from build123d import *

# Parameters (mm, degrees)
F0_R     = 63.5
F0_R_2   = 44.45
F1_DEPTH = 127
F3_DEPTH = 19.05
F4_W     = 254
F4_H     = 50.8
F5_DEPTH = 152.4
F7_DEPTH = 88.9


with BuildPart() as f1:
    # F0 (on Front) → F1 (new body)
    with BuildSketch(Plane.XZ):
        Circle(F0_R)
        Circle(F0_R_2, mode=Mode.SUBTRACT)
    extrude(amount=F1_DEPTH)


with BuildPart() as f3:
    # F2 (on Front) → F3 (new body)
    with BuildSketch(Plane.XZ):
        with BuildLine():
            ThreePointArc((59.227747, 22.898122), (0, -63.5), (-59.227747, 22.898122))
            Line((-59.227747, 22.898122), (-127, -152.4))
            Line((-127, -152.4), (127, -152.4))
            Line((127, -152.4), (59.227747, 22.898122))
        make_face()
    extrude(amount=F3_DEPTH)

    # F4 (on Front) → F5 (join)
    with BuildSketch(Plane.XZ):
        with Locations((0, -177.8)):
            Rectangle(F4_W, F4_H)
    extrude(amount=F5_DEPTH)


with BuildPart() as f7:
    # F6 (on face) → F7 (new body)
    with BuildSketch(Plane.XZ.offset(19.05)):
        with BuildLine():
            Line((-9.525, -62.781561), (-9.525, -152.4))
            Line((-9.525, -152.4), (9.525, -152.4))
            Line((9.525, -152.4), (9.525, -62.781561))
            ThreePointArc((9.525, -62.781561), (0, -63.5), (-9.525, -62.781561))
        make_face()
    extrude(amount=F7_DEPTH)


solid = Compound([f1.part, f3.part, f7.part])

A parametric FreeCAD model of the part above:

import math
import FreeCAD as App
import Part
import Sketcher
Q = App.Units.Quantity


def add_polygon(sketch, points):
    """Adds a closed chain of lines whose ends are joined by coincident constraints."""
    first, n = sketch.GeometryCount, len(points)
    for a, b in zip(points, points[1:] + points[:1]):
        sketch.addGeometry(Part.LineSegment(App.Vector(*a, 0), App.Vector(*b, 0)), False)
    for i in range(n):
        sketch.addConstraint(Sketcher.Constraint("Coincident", first + i, 2, first + (i + 1) % n, 1))

doc = App.newDocument("Part")
params = doc.addObject("Spreadsheet::Sheet", "Params")
for row, (alias, value) in enumerate([
    ("sketch1_diameter", "5 in"),
    ("sketch1_diameter2", "3.5 in"),
    ("pad1_length", "5 in"),
    ("sketch2_radius", "2.5 in"),
    ("sketch2_width", "10 in"),
    ("pad2_length", "0.75 in"),
    ("sketch3_width", "10 in"),
    ("sketch3_height", "2 in"),
    ("pad3_length", "6 in"),
    ("sketch4_width", "0.75 in"),
    ("pad4_length", "3.5 in"),
], start=1):
    params.set(f"A{row}", alias)
    params.set(f"B{row}", "=" + value)
    params.setAlias(f"B{row}", alias)

body = doc.addObject("PartDesign::Body", "Body")

# Sketch on XZ plane
sketch1 = body.newObject("Sketcher::SketchObject", "Sketch")
sketch1.AttachmentSupport = (doc.getObject("XZ_Plane"), [""])
sketch1.MapMode = "FlatFace"
sketch1.addGeometry([
    Part.Circle(App.Vector(0, 0, 0), App.Vector(0, 0, 1), 64),
    Part.Circle(App.Vector(0, 0, 0), App.Vector(0, 0, 1), 44),
], False)
sketch1.addConstraint([
    Sketcher.Constraint("Coincident", 0, 3, -1, 1),
    Sketcher.Constraint("Coincident", 1, 3, -1, 1),
    Sketcher.Constraint("Diameter", 0, Q("5 in")),
    Sketcher.Constraint("Diameter", 1, Q("3.5 in")),
])
sketch1.setExpression("Constraints[2]", "Params.sketch1_diameter")
sketch1.setExpression("Constraints[3]", "Params.sketch1_diameter2")
pad1 = body.newObject("PartDesign::Pad", "Pad")
pad1.Profile = sketch1
pad1.setExpression("Length", "Params.pad1_length")
body2 = doc.addObject("PartDesign::Body", "Body001")

# Sketch on XZ plane
sketch2 = body2.newObject("Sketcher::SketchObject", "Sketch001")
sketch2.AttachmentSupport = (doc.getObject("XZ_Plane001"), [""])
sketch2.MapMode = "FlatFace"
sketch2.addGeometry([
    Part.ArcOfCircle(Part.Circle(App.Vector(0, 0, 0), App.Vector(0, 0, 1), 64), math.radians(159), math.radians(381)),
    Part.LineSegment(App.Vector(-59, 23, 0), App.Vector(-127, -152, 0)),
    Part.LineSegment(App.Vector(-127, -152, 0), App.Vector(127, -152, 0)),
    Part.LineSegment(App.Vector(127, -152, 0), App.Vector(59, 23, 0)),
], False)
sketch2.addConstraint([
    Sketcher.Constraint("Tangent", 0, 1, 1, 1),
    Sketcher.Constraint("Coincident", 1, 2, 2, 1),
    Sketcher.Constraint("Coincident", 2, 2, 3, 1),
    Sketcher.Constraint("Tangent", 3, 2, 0, 2),
    Sketcher.Constraint("Horizontal", 2),
    Sketcher.Constraint("Coincident", 0, 3, -1, 1),
    Sketcher.Constraint("Horizontal", 0, 1, 3, 2),
    Sketcher.Constraint("Radius", 0, Q("2.5 in")),
    Sketcher.Constraint("DistanceX", 2, 1, 2, 2, Q("10 in")),
    Sketcher.Constraint("DistanceY", 1, 2, -1, 1, Q("6 in")),
])
sketch2.setExpression("Constraints[7]", "Params.sketch2_radius")
sketch2.setExpression("Constraints[8]", "Params.sketch2_width")
pad2 = body2.newObject("PartDesign::Pad", "Pad001")
pad2.Profile = sketch2
pad2.setExpression("Length", "Params.pad2_length")

# Sketch on XZ plane
sketch3 = body2.newObject("Sketcher::SketchObject", "Sketch002")
sketch3.AttachmentSupport = (doc.getObject("XZ_Plane001"), [""])
sketch3.MapMode = "FlatFace"
add_polygon(sketch3, [(-127, -152), (-127, -203), (127, -203), (127, -152)])  # lines 0-3
sketch3.addConstraint([
    Sketcher.Constraint("Vertical", 0),
    Sketcher.Constraint("Horizontal", 1),
    Sketcher.Constraint("Vertical", 2),
    Sketcher.Constraint("Horizontal", 3),
    Sketcher.Constraint("DistanceX", 1, 1, 1, 2, Q("10 in")),
    Sketcher.Constraint("DistanceY", 0, 2, 0, 1, Q("2 in")),
    Sketcher.Constraint("DistanceX", 0, 2, -1, 1, Q("5 in")),
    Sketcher.Constraint("DistanceY", 0, 2, -1, 1, Q("8 in")),
])
sketch3.setExpression("Constraints[8]", "Params.sketch3_width")
sketch3.setExpression("Constraints[9]", "Params.sketch3_height")
pad3 = body2.newObject("PartDesign::Pad", "Pad002")
pad3.Profile = sketch3
pad3.setExpression("Length", "Params.pad3_length")
body3 = doc.addObject("PartDesign::Body", "Body002")

# Sketch on XZ plane
sketch4 = body3.newObject("Sketcher::SketchObject", "Sketch003")
sketch4.AttachmentSupport = (doc.getObject("XZ_Plane002"), [""])
sketch4.MapMode = "FlatFace"
sketch4.AttachmentOffset = App.Placement(App.Vector(0, 0, 0.75 * 25.4), App.Rotation())
sketch4.addGeometry([
    Part.LineSegment(App.Vector(-10, -63, 0), App.Vector(-10, -152, 0)),
    Part.LineSegment(App.Vector(-10, -152, 0), App.Vector(10, -152, 0)),
    Part.LineSegment(App.Vector(10, -152, 0), App.Vector(10, -63, 0)),
    Part.ArcOfCircle(Part.Circle(App.Vector(0, 0, 0), App.Vector(0, 0, 1), 64), math.radians(-98.63), math.radians(-81.37)),
], False)
sketch4.addConstraint([
    Sketcher.Constraint("Coincident", 0, 2, 1, 1),
    Sketcher.Constraint("Coincident", 1, 2, 2, 1),
    Sketcher.Constraint("Coincident", 2, 2, 3, 2),
    Sketcher.Constraint("Coincident", 3, 1, 0, 1),
    Sketcher.Constraint("Vertical", 0),
    Sketcher.Constraint("Horizontal", 1),
    Sketcher.Constraint("Vertical", 2),
    Sketcher.Constraint("Symmetric", 2, 2, 3, 1, -2),
    Sketcher.Constraint("DistanceY", 0, 2, -1, 1, Q("6 in")),
    Sketcher.Constraint("DistanceX", 1, 1, 1, 2, Q("0.75 in")),
    Sketcher.Constraint("Radius", 3, 63.500019),
    Sketcher.Constraint("DistanceY", 0, 2, 0, 1, 89.618439),
])
sketch4.setExpression("Constraints[9]", "Params.sketch4_width")
pad4 = body3.newObject("PartDesign::Pad", "Pad003")
pad4.Profile = sketch4
pad4.setExpression("Length", "Params.pad4_length")

doc.recompute()
